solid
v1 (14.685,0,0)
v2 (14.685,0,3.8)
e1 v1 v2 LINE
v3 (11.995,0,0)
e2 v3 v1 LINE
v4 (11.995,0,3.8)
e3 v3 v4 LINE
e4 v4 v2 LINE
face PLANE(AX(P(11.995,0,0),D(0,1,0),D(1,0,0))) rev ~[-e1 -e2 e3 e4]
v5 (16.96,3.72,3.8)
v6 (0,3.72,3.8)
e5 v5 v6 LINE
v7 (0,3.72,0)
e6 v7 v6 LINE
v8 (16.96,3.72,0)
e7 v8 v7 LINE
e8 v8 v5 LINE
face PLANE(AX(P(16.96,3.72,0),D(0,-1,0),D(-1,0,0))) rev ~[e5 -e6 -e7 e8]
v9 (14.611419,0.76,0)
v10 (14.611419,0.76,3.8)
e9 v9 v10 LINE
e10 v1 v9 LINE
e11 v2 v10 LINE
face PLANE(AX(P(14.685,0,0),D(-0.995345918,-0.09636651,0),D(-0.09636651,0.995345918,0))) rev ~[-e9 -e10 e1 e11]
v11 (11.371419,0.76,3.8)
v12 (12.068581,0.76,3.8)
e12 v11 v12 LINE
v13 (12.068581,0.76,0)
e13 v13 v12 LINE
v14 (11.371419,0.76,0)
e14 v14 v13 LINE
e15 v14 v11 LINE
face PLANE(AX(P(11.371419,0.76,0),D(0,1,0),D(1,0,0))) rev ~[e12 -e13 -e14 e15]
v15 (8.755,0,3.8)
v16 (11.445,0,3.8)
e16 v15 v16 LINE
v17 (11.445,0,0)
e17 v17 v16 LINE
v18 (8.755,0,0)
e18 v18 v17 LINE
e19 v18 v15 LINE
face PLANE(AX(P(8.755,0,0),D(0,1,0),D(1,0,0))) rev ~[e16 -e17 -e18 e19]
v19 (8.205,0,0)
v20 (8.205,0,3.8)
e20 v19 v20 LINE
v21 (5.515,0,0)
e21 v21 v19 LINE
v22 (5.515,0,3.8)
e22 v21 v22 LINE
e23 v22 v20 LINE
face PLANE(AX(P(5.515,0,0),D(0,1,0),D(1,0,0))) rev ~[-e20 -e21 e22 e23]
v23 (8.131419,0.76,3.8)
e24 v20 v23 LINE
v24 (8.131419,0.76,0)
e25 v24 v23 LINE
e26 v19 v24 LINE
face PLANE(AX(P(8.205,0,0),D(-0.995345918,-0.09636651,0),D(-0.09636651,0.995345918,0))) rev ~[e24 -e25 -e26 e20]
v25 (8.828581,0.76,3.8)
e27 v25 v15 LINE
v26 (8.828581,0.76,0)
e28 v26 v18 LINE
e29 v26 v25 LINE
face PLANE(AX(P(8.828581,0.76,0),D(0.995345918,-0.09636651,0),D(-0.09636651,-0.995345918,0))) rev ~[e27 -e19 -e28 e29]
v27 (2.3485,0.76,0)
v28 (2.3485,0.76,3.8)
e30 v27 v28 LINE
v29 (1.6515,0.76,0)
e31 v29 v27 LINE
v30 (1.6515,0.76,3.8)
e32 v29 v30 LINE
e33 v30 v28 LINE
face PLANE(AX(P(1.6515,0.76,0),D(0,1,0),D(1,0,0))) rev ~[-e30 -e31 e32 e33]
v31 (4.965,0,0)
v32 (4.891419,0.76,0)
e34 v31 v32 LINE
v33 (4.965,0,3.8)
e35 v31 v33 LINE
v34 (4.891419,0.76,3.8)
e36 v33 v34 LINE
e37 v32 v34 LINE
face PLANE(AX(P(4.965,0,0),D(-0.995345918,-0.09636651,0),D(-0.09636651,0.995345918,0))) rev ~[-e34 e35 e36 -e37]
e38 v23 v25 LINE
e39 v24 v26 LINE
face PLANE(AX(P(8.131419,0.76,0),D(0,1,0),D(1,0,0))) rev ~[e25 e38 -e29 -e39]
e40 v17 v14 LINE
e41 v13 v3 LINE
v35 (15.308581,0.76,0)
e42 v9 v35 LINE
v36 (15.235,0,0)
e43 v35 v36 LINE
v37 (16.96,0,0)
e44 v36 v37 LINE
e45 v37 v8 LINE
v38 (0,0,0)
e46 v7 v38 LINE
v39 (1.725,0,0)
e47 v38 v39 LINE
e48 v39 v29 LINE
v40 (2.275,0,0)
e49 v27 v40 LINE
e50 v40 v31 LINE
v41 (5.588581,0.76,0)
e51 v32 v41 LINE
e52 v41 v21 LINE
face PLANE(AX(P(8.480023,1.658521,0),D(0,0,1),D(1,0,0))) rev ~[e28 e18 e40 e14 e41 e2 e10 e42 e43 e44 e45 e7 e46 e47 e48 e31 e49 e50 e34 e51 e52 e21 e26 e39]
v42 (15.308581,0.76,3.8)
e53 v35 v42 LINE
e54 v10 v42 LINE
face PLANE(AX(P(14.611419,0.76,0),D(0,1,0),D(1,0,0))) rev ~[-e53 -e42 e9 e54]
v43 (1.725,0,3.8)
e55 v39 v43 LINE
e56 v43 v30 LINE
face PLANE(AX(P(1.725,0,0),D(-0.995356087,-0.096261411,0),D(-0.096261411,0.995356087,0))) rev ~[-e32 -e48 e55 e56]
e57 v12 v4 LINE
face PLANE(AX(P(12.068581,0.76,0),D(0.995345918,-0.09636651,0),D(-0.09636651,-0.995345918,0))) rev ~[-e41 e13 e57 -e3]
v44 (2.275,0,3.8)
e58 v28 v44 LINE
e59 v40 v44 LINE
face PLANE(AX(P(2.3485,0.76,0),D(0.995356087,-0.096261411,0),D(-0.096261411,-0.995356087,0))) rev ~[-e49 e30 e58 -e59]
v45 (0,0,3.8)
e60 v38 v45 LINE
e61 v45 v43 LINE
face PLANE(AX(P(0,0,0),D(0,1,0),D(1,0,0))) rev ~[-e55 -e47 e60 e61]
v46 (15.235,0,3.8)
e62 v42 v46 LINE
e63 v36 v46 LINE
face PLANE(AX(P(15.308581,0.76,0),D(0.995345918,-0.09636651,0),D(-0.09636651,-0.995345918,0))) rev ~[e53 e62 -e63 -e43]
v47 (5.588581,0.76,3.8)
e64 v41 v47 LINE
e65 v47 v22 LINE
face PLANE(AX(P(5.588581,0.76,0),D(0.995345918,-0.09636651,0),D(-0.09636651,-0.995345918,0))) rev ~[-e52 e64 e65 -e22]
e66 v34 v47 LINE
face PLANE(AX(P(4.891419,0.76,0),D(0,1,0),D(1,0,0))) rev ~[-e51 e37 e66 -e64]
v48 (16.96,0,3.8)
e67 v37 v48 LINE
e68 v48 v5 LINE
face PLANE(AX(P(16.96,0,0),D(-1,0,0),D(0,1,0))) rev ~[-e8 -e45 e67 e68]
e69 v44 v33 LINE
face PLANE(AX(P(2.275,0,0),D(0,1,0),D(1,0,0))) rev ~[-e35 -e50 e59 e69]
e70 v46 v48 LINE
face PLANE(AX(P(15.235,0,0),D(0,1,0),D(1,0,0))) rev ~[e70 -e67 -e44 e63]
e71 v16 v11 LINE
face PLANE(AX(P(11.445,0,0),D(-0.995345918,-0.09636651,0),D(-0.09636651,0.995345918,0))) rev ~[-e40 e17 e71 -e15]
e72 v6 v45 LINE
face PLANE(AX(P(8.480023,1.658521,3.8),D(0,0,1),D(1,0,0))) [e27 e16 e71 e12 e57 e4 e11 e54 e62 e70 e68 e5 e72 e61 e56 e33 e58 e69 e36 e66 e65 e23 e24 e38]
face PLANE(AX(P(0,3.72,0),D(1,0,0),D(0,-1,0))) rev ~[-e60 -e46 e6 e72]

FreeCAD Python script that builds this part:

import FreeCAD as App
import Part
import Sketcher
from FreeCAD import Vector
Q = App.Units.Quantity

doc = App.newDocument("Part")
body = doc.addObject("PartDesign::Body", "Body")

# Sketch on XY plane
sketch1 = body.newObject("Sketcher::SketchObject", "Sketch")
sketch1.AttachmentSupport = (doc.getObject("XY_Plane"), [""])
sketch1.MapMode = "FlatFace"
sketch1.addGeometry(Part.LineSegment(Vector(0, 3.7, 0), Vector(0, 0, 0)), False)
sketch1.addGeometry(Part.LineSegment(Vector(0, 0, 0), Vector(1.7, 0, 0)), False)
sketch1.addGeometry(Part.LineSegment(Vector(1.7, 0, 0), Vector(1.7, 0.8, 0)), False)
sketch1.addGeometry(Part.LineSegment(Vector(1.7, 0.8, 0), Vector(2.3, 0.8, 0)), False)
sketch1.addGeometry(Part.LineSegment(Vector(2.3, 0.8, 0), Vector(2.3, 0, 0)), False)
sketch1.addGeometry(Part.LineSegment(Vector(2.3, 0, 0), Vector(5, 0, 0)), False)
sketch1.addGeometry(Part.LineSegment(Vector(5, 0, 0), Vector(4.9, 0.8, 0)), False)
sketch1.addGeometry(Part.LineSegment(Vector(4.9, 0.8, 0), Vector(5.6, 0.8, 0)), False)
sketch1.addGeometry(Part.LineSegment(Vector(5.6, 0.8, 0), Vector(5.5, 0, 0)), False)
sketch1.addGeometry(Part.LineSegment(Vector(5.5, 0, 0), Vector(8.2, 0, 0)), False)
sketch1.addGeometry(Part.LineSegment(Vector(8.2, 0, 0), Vector(8.1, 0.8, 0)), False)
sketch1.addGeometry(Part.LineSegment(Vector(8.1, 0.8, 0), Vector(8.8, 0.8, 0)), False)
sketch1.addGeometry(Part.LineSegment(Vector(8.8, 0.8, 0), Vector(8.8, 0, 0)), False)
sketch1.addGeometry(Part.LineSegment(Vector(8.8, 0, 0), Vector(11.4, 0, 0)), False)
sketch1.addGeometry(Part.LineSegment(Vector(11.4, 0, 0), Vector(11.4, 0.8, 0)), False)
sketch1.addGeometry(Part.LineSegment(Vector(11.4, 0.8, 0), Vector(12.1, 0.8, 0)), False)
sketch1.addGeometry(Part.LineSegment(Vector(12.1, 0.8, 0), Vector(12, 0, 0)), False)
sketch1.addGeometry(Part.LineSegment(Vector(12, 0, 0), Vector(14.7, 0, 0)), False)
sketch1.addGeometry(Part.LineSegment(Vector(14.7, 0, 0), Vector(14.6, 0.8, 0)), False)
sketch1.addGeometry(Part.LineSegment(Vector(14.6, 0.8, 0), Vector(15.3, 0.8, 0)), False)
sketch1.addGeometry(Part.LineSegment(Vector(15.3, 0.8, 0), Vector(15.2, 0, 0)), False)
sketch1.addGeometry(Part.LineSegment(Vector(15.2, 0, 0), Vector(17, 0, 0)), False)
sketch1.addGeometry(Part.LineSegment(Vector(17, 0, 0), Vector(17, 3.7, 0)), False)
sketch1.addGeometry(Part.LineSegment(Vector(17, 3.7, 0), Vector(0, 3.7, 0)), False)
sketch1.addConstraint(Sketcher.Constraint("Coincident", 0, 2, 1, 1))
sketch1.addConstraint(Sketcher.Constraint("Coincident", 1, 2, 2, 1))
sketch1.addConstraint(Sketcher.Constraint("Coincident", 2, 2, 3, 1))
sketch1.addConstraint(Sketcher.Constraint("Coincident", 3, 2, 4, 1))
sketch1.addConstraint(Sketcher.Constraint("Coincident", 4, 2, 5, 1))
sketch1.addConstraint(Sketcher.Constraint("Coincident", 5, 2, 6, 1))
sketch1.addConstraint(Sketcher.Constraint("Coincident", 6, 2, 7, 1))
sketch1.addConstraint(Sketcher.Constraint("Coincident", 7, 2, 8, 1))
sketch1.addConstraint(Sketcher.Constraint("Coincident", 8, 2, 9, 1))
sketch1.addConstraint(Sketcher.Constraint("Coincident", 9, 2, 10, 1))
sketch1.addConstraint(Sketcher.Constraint("Coincident", 10, 2, 11, 1))
sketch1.addConstraint(Sketcher.Constraint("Coincident", 11, 2, 12, 1))
sketch1.addConstraint(Sketcher.Constraint("Coincident", 12, 2, 13, 1))
sketch1.addConstraint(Sketcher.Constraint("Coincident", 13, 2, 14, 1))
sketch1.addConstraint(Sketcher.Constraint("Coincident", 14, 2, 15, 1))
sketch1.addConstraint(Sketcher.Constraint("Coincident", 15, 2, 16, 1))
sketch1.addConstraint(Sketcher.Constraint("Coincident", 16, 2, 17, 1))
sketch1.addConstraint(Sketcher.Constraint("Coincident", 17, 2, 18, 1))
sketch1.addConstraint(Sketcher.Constraint("Coincident", 18, 2, 19, 1))
sketch1.addConstraint(Sketcher.Constraint("Coincident", 19, 2, 20, 1))
sketch1.addConstraint(Sketcher.Constraint("Coincident", 20, 2, 21, 1))
sketch1.addConstraint(Sketcher.Constraint("Coincident", 21, 2, 22, 1))
sketch1.addConstraint(Sketcher.Constraint("Coincident", 22, 2, 23, 1))
sketch1.addConstraint(Sketcher.Constraint("Coincident", 23, 2, 0, 1))
sketch1.addConstraint(Sketcher.Constraint("Vertical", 0))
sketch1.addConstraint(Sketcher.Constraint("Horizontal", 1))
sketch1.addConstraint(Sketcher.Constraint("Horizontal", 3))
sketch1.addConstraint(Sketcher.Constraint("Horizontal", 5))
sketch1.addConstraint(Sketcher.Constraint("Horizontal", 7))
sketch1.addConstraint(Sketcher.Constraint("Horizontal", 9))
sketch1.addConstraint(Sketcher.Constraint("Horizontal", 11))
sketch1.addConstraint(Sketcher.Constraint("Horizontal", 13))
sketch1.addConstraint(Sketcher.Constraint("Horizontal", 15))
sketch1.addConstraint(Sketcher.Constraint("Horizontal", 17))
sketch1.addConstraint(Sketcher.Constraint("Horizontal", 19))
sketch1.addConstraint(Sketcher.Constraint("Horizontal", 21))
sketch1.addConstraint(Sketcher.Constraint("Vertical", 22))
sketch1.addConstraint(Sketcher.Constraint("Horizontal", 23))
sketch1.addConstraint(Sketcher.Constraint("Coincident", 0, 2, -1, 1))
sketch1.addConstraint(Sketcher.Constraint("PointOnObject", 4, 2, -1))
sketch1.addConstraint(Sketcher.Constraint("PointOnObject", 8, 2, -1))
sketch1.addConstraint(Sketcher.Constraint("PointOnObject", 12, 2, -1))
sketch1.addConstraint(Sketcher.Constraint("PointOnObject", 16, 2, -1))
sketch1.addConstraint(Sketcher.Constraint("PointOnObject", 20, 2, -1))
sketch1.addConstraint(Sketcher.Constraint("Parallel", 6, 10))
sketch1.addConstraint(Sketcher.Constraint("Parallel", 8, 12))
sketch1.addConstraint(Sketcher.Constraint("Parallel", 10, 14))
sketch1.addConstraint(Sketcher.Constraint("Parallel", 12, 16))
sketch1.addConstraint(Sketcher.Constraint("Parallel", 14, 18))
sketch1.addConstraint(Sketcher.Constraint("Parallel", 16, 20))
sketch1.addConstraint(Sketcher.Constraint("Horizontal", 3, 2, 6, 2))
sketch1.addConstraint(Sketcher.Constraint("Horizontal", 7, 2, 10, 2))
sketch1.addConstraint(Sketcher.Constraint("Horizontal", 11, 2, 14, 2))
sketch1.addConstraint(Sketcher.Constraint("Horizontal", 15, 2, 18, 2))
sketch1.addConstraint(Sketcher.Constraint("Equal", 5, 9))
sketch1.addConstraint(Sketcher.Constraint("Equal", 7, 11))
sketch1.addConstraint(Sketcher.Constraint("Equal", 9, 13))
sketch1.addConstraint(Sketcher.Constraint("Equal", 11, 15))
sketch1.addConstraint(Sketcher.Constraint("Equal", 13, 17))
sketch1.addConstraint(Sketcher.Constraint("Equal", 15, 19))
sketch1.addConstraint(Sketcher.Constraint("Equal", 1, 21))
sketch1.addConstraint(Sketcher.Constraint("Equal", 2, 4))
sketch1.addConstraint(Sketcher.Constraint("Equal", 6, 8))
sketch1.addConstraint(Sketcher.Constraint("DistanceX", 5, 1, 5, 2, Q("2.69 mm")))
sketch1.addConstraint(Sketcher.Constraint("DistanceX", 23, 2, 23, 1, Q("16.96 mm")))
sketch1.addConstraint(Sketcher.Constraint("DistanceY", 0, 2, 0, 1, Q("3.72 mm")))
sketch1.addConstraint(Sketcher.Constraint("DistanceX", 1, 1, 1, 2, Q("1.725 mm")))
sketch1.addConstraint(Sketcher.Constraint("DistanceX", 3, 1, 3, 2, Q("0.697 mm")))
sketch1.addConstraint(Sketcher.Constraint("DistanceY", -1, 1, 2, 2, Q("0.76 mm")))
sketch1.addConstraint(Sketcher.Constraint("DistanceX", 1, 2, 4, 2, Q("0.55 mm")))
sketch1.addConstraint(Sketcher.Constraint("DistanceX", 7, 1, 7, 2, Q("0.697162 mm")))
pad1 = body.newObject("PartDesign::Pad", "Pad")
pad1.Profile = sketch1
pad1.Length = 3.8

doc.recompute()
